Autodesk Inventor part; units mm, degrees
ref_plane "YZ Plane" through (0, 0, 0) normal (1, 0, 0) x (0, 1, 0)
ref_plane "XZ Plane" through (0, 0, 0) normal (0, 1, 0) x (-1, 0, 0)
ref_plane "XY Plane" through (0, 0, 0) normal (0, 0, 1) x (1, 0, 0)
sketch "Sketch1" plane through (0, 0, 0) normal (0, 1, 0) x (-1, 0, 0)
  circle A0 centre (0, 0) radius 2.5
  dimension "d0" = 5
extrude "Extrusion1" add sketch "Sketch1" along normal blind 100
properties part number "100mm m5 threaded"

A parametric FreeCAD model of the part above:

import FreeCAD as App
import Part
import Sketcher

V = App.Vector

doc = App.newDocument("Part")
body = doc.addObject("PartDesign::Body", "Body")

# Sketch on XZ plane
sketch1 = body.newObject("Sketcher::SketchObject", "Sketch")
sketch1.AttachmentSupport = (doc.getObject("XZ_Plane"), [""])
sketch1.MapMode = "FlatFace"
sketch1.addGeometry(Part.Circle(V(0, 0, 0), V(0, 0, 1), 2.5), False)
sketch1.addConstraint(Sketcher.Constraint("Coincident", 0, 3, -1, 1))
sketch1.addConstraint(Sketcher.Constraint("Diameter", 0, 5.0))
pad1 = body.newObject("PartDesign::Pad", "Pad")
pad1.Profile = sketch1
pad1.Length = 100
pad1.Reversed = True

doc.recompute()
